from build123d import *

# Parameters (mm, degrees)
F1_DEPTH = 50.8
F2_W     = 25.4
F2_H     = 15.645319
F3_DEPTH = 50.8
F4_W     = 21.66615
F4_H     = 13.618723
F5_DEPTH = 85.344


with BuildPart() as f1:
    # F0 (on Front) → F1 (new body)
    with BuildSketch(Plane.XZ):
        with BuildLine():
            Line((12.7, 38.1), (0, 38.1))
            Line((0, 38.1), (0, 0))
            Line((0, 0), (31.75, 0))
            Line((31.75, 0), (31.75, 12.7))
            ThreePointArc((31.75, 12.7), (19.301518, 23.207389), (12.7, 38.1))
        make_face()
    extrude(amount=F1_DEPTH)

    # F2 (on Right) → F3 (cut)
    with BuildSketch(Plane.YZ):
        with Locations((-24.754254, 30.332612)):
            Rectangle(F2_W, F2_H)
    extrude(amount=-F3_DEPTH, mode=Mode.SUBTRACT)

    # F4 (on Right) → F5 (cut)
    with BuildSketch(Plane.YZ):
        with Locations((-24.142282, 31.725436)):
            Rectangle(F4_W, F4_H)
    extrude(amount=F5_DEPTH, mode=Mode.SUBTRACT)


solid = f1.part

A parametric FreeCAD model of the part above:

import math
import FreeCAD as App
import Part
import Sketcher
Q = App.Units.Quantity

doc = App.newDocument("Part")
body = doc.addObject("PartDesign::Body", "Body")

sketch1 = body.newObject("Sketcher::SketchObject", "Sketch")
sketch1.AttachmentSupport = (doc.getObject("XZ_Plane"), [""])
sketch1.MapMode = "FlatFace"
sketch1.addGeometry([
    Part.LineSegment(App.Vector(13, 38, 0), App.Vector(0, 38, 0)),
    Part.LineSegment(App.Vector(0, 38, 0), App.Vector(0, 0, 0)),
    Part.LineSegment(App.Vector(0, 0, 0), App.Vector(32, 0, 0)),
    Part.LineSegment(App.Vector(32, 0, 0), App.Vector(32, 13, 0)),
    Part.ArcOfCircle(Part.Circle(App.Vector(48, 45, 0), App.Vector(0, 0, 1), 36), math.radians(-169), math.radians(-117)),
], False)
sketch1.addConstraint([
    Sketcher.Constraint("Coincident", 0, 2, 1, 1),
    Sketcher.Constraint("Coincident", 1, 2, 2, 1),
    Sketcher.Constraint("Coincident", 2, 2, 3, 1),
    Sketcher.Constraint("Coincident", 3, 2, 4, 2),
    Sketcher.Constraint("Coincident", 4, 1, 0, 1),
    Sketcher.Constraint("Horizontal", 0),
    Sketcher.Constraint("Vertical", 1),
    Sketcher.Constraint("Horizontal", 2),
    Sketcher.Constraint("Vertical", 3),
    Sketcher.Constraint("Coincident", 1, 2, -1, 1),
    Sketcher.Constraint("Equal", 0, 3),
    Sketcher.Constraint("DistanceX", 0, 2, 0, 1, Q("0.5 in")),
    Sketcher.Constraint("DistanceY", 1, 2, 1, 1, Q("1.5 in")),
    Sketcher.Constraint("DistanceX", 2, 1, 2, 2, Q("1.25 in")),
    Sketcher.Constraint("Radius", 4, 36.308749),
])
pad1 = body.newObject("PartDesign::Pad", "Pad")
pad1.Profile = sketch1
pad1.Length = Q("2 in")

sketch2 = body.newObject("Sketcher::SketchObject", "Sketch001")
sketch2.AttachmentSupport = (doc.getObject("YZ_Plane"), [""])
sketch2.MapMode = "FlatFace"
sketch2.addGeometry([
    Part.LineSegment(App.Vector(-37, 38, 0), App.Vector(-37, 23, 0)),
    Part.LineSegment(App.Vector(-37, 23, 0), App.Vector(-12, 23, 0)),
    Part.LineSegment(App.Vector(-12, 23, 0), App.Vector(-12, 38, 0)),
    Part.LineSegment(App.Vector(-12, 38, 0), App.Vector(-37, 38, 0)),
], False)
sketch2.addConstraint([
    Sketcher.Constraint("Coincident", 0, 2, 1, 1),
    Sketcher.Constraint("Coincident", 1, 2, 2, 1),
    Sketcher.Constraint("Coincident", 2, 2, 3, 1),
    Sketcher.Constraint("Coincident", 3, 2, 0, 1),
    Sketcher.Constraint("Vertical", 0),
    Sketcher.Constraint("Horizontal", 1),
    Sketcher.Constraint("Vertical", 2),
    Sketcher.Constraint("Horizontal", 3),
    Sketcher.Constraint("DistanceX", 1, 1, 1, 2, Q("1 in")),
    Sketcher.Constraint("DistanceY", 0, 2, 0, 1, 15.645319),
    Sketcher.Constraint("DistanceY", -1, 1, 2, 2, 38.155271),
    Sketcher.Constraint("DistanceX", 0, 2, -1, 1, 37.454254),
])
pocket1 = body.newObject("PartDesign::Pocket", "Pocket")
pocket1.Profile = sketch2
pocket1.Length = Q("2 in")

sketch3 = body.newObject("Sketcher::SketchObject", "Sketch002")
sketch3.AttachmentSupport = (doc.getObject("YZ_Plane"), [""])
sketch3.MapMode = "FlatFace"
sketch3.addGeometry([
    Part.LineSegment(App.Vector(-35, 39, 0), App.Vector(-35, 25, 0)),
    Part.LineSegment(App.Vector(-35, 25, 0), App.Vector(-13, 25, 0)),
    Part.LineSegment(App.Vector(-13, 25, 0), App.Vector(-13, 39, 0)),
    Part.LineSegment(App.Vector(-13, 39, 0), App.Vector(-35, 39, 0)),
], False)
sketch3.addConstraint([
    Sketcher.Constraint("Coincident", 0, 2, 1, 1),
    Sketcher.Constraint("Coincident", 1, 2, 2, 1),
    Sketcher.Constraint("Coincident", 2, 2, 3, 1),
    Sketcher.Constraint("Coincident", 3, 2, 0, 1),
    Sketcher.Constraint("Vertical", 0),
    Sketcher.Constraint("Horizontal", 1),
    Sketcher.Constraint("Vertical", 2),
    Sketcher.Constraint("Horizontal", 3),
    Sketcher.Constraint("DistanceX", 1, 1, 1, 2, 21.66615),
    Sketcher.Constraint("DistanceY", 0, 2, 0, 1, 13.618723),
    Sketcher.Constraint("DistanceX", 0, 2, -1, 1, 34.975357),
    Sketcher.Constraint("DistanceY", -1, 1, 0, 2, 24.916075),
])
pocket2 = body.newObject("PartDesign::Pocket", "Pocket001")
pocket2.Profile = sketch3
pocket2.Length = Q("3.36 in")
pocket2.Reversed = True

doc.recompute()
